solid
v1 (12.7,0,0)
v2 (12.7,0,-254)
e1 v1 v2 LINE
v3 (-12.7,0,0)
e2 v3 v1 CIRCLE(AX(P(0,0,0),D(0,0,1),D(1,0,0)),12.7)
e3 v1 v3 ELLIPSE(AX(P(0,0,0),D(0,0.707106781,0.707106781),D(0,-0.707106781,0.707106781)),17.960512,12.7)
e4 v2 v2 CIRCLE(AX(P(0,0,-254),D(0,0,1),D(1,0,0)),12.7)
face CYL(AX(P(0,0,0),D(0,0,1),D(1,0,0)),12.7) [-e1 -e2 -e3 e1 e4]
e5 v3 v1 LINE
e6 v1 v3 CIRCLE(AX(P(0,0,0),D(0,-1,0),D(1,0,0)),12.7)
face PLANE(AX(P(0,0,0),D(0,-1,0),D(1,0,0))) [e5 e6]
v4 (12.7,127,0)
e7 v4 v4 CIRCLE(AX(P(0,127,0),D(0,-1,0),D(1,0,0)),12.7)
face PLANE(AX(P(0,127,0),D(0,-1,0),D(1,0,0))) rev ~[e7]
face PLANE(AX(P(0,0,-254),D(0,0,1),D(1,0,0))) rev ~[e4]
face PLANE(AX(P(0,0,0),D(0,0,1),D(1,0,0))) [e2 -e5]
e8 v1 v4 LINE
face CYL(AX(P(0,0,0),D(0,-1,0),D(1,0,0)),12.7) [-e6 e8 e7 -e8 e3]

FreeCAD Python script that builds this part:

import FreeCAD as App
import Part
import Sketcher
from FreeCAD import Vector
Q = App.Units.Quantity

doc = App.newDocument("Part")
body = doc.addObject("PartDesign::Body", "Body")

sketch1 = body.newObject("Sketcher::SketchObject", "Sketch")
sketch1.AttachmentSupport = (doc.getObject("XY_Plane"), [""])
sketch1.MapMode = "FlatFace"
sketch1.addGeometry(Part.Circle(Vector(0, 0, 0), Vector(0, 0, 1), 13), False)
sketch1.addConstraint(Sketcher.Constraint("Coincident", 0, 3, -1, 1))
sketch1.addConstraint(Sketcher.Constraint("Diameter", 0, Q("1 in")))
pad1 = body.newObject("PartDesign::Pad", "Pad")
pad1.Profile = sketch1
pad1.Length = Q("10 in")
pad1.Reversed = True

sketch2 = body.newObject("Sketcher::SketchObject", "Sketch001")
sketch2.AttachmentSupport = (doc.getObject("XZ_Plane"), [""])
sketch2.MapMode = "FlatFace"
sketch2.addGeometry(Part.Circle(Vector(0, 0, 0), Vector(0, 0, 1), 13), False)
sketch2.addConstraint(Sketcher.Constraint("Coincident", 0, 3, -1, 1))
sketch2.addConstraint(Sketcher.Constraint("Diameter", 0, Q("1 in")))
pad2 = body.newObject("PartDesign::Pad", "Pad001")
pad2.Profile = sketch2
pad2.Length = Q("5 in")
pad2.Reversed = True

doc.recompute()
